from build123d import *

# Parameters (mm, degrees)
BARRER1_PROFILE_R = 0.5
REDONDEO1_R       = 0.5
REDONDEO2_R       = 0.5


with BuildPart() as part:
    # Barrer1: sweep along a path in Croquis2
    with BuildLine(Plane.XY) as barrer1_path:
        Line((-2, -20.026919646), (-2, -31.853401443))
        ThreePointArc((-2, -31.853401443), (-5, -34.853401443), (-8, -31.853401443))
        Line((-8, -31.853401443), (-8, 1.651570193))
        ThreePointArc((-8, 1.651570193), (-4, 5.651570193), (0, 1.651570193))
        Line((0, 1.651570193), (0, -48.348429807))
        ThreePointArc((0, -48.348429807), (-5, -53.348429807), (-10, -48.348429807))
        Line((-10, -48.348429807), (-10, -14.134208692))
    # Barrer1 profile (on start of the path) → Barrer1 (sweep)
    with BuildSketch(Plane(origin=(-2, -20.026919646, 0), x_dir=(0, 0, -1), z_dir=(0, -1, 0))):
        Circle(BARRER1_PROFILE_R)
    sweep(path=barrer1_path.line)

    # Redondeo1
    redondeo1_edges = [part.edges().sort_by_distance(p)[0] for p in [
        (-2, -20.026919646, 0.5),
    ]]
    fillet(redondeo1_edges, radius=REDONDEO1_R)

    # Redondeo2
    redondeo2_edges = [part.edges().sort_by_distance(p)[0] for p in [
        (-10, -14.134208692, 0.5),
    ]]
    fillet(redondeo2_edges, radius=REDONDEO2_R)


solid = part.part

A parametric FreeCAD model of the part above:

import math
import FreeCAD as App
import Part
import Sketcher


def edges_at(feature, points):
    """Names of the edges that pass closest to the given points."""
    edges = feature.Shape.Edges
    near = lambda p: min(range(len(edges)), key=lambda i: edges[i].distToShape(Part.Vertex(*p))[0])
    return sorted({f"Edge{near(p) + 1}" for p in points})

doc = App.newDocument("Part")
params = doc.addObject("Spreadsheet::Sheet", "Params")
for row, (alias, value) in enumerate([
    ("sketch1_diameter", "1 mm"),
    ("sketch2_radius", "3 mm"),
    ("sketch2_radius2", "4 mm"),
    ("sketch2_height", "50 mm"),
    ("fillet_radius", "0.5 mm"),
    ("fillet2_radius", "0.5 mm"),
], start=1):
    params.set(f"A{row}", alias)
    params.set(f"B{row}", "=" + value)
    params.setAlias(f"B{row}", alias)

body = doc.addObject("PartDesign::Body", "Body")

# Sketch on XZ plane
sketch1 = body.newObject("Sketcher::SketchObject", "Sketch")
sketch1.AttachmentSupport = (doc.getObject("XZ_Plane"), [""])
sketch1.MapMode = "FlatFace"
sketch1.AttachmentOffset = App.Placement(App.Vector(0, 0, 20.02692), App.Rotation())
sketch1.addGeometry(Part.Circle(App.Vector(-2, 0, 0), App.Vector(0, 0, 1), 0.5), False)
sketch1.addConstraint(Sketcher.Constraint("PointOnObject", 0, 3, -1))
sketch1.addConstraint(Sketcher.Constraint("Diameter", 0, 1.0))
sketch1.addConstraint(Sketcher.Constraint("DistanceX", 0, 3, -1, 1, 2.0))
sketch1.setExpression("Constraints[1]", "Params.sketch1_diameter")

# Sketch on XY plane
sketch2 = body.newObject("Sketcher::SketchObject", "Sketch001")
sketch2.AttachmentSupport = (doc.getObject("XY_Plane"), [""])
sketch2.MapMode = "FlatFace"
sketch2.addGeometry(Part.LineSegment(App.Vector(-2, -20, 0), App.Vector(-2, -31.9, 0)), False)
sketch2.addGeometry(Part.ArcOfCircle(Part.Circle(App.Vector(-5, -31.9, 0), App.Vector(0, 0, 1), 3), math.radians(180), math.radians(360)), False)
sketch2.addGeometry(Part.LineSegment(App.Vector(-8, -31.9, 0), App.Vector(-8, 1.7, 0)), False)
sketch2.addGeometry(Part.ArcOfCircle(Part.Circle(App.Vector(-4, 1.7, 0), App.Vector(0, 0, 1), 4), math.radians(0), math.radians(180)), False)
sketch2.addGeometry(Part.LineSegment(App.Vector(0, 1.7, 0), App.Vector(0, -48.3, 0)), False)
sketch2.addGeometry(Part.ArcOfCircle(Part.Circle(App.Vector(-5, -48.3, 0), App.Vector(0, 0, 1), 5), math.radians(180), math.radians(360)), False)
sketch2.addGeometry(Part.LineSegment(App.Vector(-10, -48.3, 0), App.Vector(-10, -14.1, 0)), False)
sketch2.addConstraint(Sketcher.Constraint("Tangent", 0, 2, 1, 2))
sketch2.addConstraint(Sketcher.Constraint("Tangent", 1, 1, 2, 1))
sketch2.addConstraint(Sketcher.Constraint("Tangent", 2, 2, 3, 2))
sketch2.addConstraint(Sketcher.Constraint("Tangent", 3, 1, 4, 1))
sketch2.addConstraint(Sketcher.Constraint("Tangent", 4, 2, 5, 2))
sketch2.addConstraint(Sketcher.Constraint("Tangent", 5, 1, 6, 1))
sketch2.addConstraint(Sketcher.Constraint("Vertical", 0))
sketch2.addConstraint(Sketcher.Constraint("Vertical", 2))
sketch2.addConstraint(Sketcher.Constraint("Vertical", 4))
sketch2.addConstraint(Sketcher.Constraint("Vertical", 6))
sketch2.addConstraint(Sketcher.Constraint("PointOnObject", 3, 1, -2))
sketch2.addConstraint(Sketcher.Constraint("Vertical", 1, 3, 5, 3))
sketch2.addConstraint(Sketcher.Constraint("Radius", 1, 3.0))
sketch2.addConstraint(Sketcher.Constraint("Radius", 3, 4.0))
sketch2.addConstraint(Sketcher.Constraint("DistanceY", 4, 2, 4, 1, 50.0))
sketch2.addConstraint(Sketcher.Constraint("DistanceY", 0, 2, 0, 1, 11.826482))
sketch2.addConstraint(Sketcher.Constraint("DistanceY", 2, 1, 2, 2, 33.504972))
sketch2.addConstraint(Sketcher.Constraint("DistanceY", 6, 1, 6, 2, 34.214221))
sketch2.addConstraint(Sketcher.Constraint("DistanceY", 1, 3, -1, 1, 31.853401))
sketch2.setExpression("Constraints[12]", "Params.sketch2_radius")
sketch2.setExpression("Constraints[13]", "Params.sketch2_radius2")
sketch2.setExpression("Constraints[14]", "Params.sketch2_height")
doc.recompute()

additivepipe = body.newObject("PartDesign::AdditivePipe", "AdditivePipe")
additivepipe.Profile = sketch1
additivepipe.Spine = (sketch2, ["Edge1", "Edge2", "Edge3", "Edge4", "Edge5", "Edge6", "Edge7"])
doc.recompute()

fillet = body.newObject("PartDesign::Fillet", "Fillet")
fillet.Base = (additivepipe, edges_at(additivepipe, [(-2, -20.027, 0.5)]))
fillet.setExpression("Radius", "Params.fillet_radius")
doc.recompute()

fillet2 = body.newObject("PartDesign::Fillet", "Fillet001")
fillet2.Base = (fillet, edges_at(fillet, [(-10, -14.134, 0.5)]))
fillet2.setExpression("Radius", "Params.fillet2_radius")

doc.recompute()
